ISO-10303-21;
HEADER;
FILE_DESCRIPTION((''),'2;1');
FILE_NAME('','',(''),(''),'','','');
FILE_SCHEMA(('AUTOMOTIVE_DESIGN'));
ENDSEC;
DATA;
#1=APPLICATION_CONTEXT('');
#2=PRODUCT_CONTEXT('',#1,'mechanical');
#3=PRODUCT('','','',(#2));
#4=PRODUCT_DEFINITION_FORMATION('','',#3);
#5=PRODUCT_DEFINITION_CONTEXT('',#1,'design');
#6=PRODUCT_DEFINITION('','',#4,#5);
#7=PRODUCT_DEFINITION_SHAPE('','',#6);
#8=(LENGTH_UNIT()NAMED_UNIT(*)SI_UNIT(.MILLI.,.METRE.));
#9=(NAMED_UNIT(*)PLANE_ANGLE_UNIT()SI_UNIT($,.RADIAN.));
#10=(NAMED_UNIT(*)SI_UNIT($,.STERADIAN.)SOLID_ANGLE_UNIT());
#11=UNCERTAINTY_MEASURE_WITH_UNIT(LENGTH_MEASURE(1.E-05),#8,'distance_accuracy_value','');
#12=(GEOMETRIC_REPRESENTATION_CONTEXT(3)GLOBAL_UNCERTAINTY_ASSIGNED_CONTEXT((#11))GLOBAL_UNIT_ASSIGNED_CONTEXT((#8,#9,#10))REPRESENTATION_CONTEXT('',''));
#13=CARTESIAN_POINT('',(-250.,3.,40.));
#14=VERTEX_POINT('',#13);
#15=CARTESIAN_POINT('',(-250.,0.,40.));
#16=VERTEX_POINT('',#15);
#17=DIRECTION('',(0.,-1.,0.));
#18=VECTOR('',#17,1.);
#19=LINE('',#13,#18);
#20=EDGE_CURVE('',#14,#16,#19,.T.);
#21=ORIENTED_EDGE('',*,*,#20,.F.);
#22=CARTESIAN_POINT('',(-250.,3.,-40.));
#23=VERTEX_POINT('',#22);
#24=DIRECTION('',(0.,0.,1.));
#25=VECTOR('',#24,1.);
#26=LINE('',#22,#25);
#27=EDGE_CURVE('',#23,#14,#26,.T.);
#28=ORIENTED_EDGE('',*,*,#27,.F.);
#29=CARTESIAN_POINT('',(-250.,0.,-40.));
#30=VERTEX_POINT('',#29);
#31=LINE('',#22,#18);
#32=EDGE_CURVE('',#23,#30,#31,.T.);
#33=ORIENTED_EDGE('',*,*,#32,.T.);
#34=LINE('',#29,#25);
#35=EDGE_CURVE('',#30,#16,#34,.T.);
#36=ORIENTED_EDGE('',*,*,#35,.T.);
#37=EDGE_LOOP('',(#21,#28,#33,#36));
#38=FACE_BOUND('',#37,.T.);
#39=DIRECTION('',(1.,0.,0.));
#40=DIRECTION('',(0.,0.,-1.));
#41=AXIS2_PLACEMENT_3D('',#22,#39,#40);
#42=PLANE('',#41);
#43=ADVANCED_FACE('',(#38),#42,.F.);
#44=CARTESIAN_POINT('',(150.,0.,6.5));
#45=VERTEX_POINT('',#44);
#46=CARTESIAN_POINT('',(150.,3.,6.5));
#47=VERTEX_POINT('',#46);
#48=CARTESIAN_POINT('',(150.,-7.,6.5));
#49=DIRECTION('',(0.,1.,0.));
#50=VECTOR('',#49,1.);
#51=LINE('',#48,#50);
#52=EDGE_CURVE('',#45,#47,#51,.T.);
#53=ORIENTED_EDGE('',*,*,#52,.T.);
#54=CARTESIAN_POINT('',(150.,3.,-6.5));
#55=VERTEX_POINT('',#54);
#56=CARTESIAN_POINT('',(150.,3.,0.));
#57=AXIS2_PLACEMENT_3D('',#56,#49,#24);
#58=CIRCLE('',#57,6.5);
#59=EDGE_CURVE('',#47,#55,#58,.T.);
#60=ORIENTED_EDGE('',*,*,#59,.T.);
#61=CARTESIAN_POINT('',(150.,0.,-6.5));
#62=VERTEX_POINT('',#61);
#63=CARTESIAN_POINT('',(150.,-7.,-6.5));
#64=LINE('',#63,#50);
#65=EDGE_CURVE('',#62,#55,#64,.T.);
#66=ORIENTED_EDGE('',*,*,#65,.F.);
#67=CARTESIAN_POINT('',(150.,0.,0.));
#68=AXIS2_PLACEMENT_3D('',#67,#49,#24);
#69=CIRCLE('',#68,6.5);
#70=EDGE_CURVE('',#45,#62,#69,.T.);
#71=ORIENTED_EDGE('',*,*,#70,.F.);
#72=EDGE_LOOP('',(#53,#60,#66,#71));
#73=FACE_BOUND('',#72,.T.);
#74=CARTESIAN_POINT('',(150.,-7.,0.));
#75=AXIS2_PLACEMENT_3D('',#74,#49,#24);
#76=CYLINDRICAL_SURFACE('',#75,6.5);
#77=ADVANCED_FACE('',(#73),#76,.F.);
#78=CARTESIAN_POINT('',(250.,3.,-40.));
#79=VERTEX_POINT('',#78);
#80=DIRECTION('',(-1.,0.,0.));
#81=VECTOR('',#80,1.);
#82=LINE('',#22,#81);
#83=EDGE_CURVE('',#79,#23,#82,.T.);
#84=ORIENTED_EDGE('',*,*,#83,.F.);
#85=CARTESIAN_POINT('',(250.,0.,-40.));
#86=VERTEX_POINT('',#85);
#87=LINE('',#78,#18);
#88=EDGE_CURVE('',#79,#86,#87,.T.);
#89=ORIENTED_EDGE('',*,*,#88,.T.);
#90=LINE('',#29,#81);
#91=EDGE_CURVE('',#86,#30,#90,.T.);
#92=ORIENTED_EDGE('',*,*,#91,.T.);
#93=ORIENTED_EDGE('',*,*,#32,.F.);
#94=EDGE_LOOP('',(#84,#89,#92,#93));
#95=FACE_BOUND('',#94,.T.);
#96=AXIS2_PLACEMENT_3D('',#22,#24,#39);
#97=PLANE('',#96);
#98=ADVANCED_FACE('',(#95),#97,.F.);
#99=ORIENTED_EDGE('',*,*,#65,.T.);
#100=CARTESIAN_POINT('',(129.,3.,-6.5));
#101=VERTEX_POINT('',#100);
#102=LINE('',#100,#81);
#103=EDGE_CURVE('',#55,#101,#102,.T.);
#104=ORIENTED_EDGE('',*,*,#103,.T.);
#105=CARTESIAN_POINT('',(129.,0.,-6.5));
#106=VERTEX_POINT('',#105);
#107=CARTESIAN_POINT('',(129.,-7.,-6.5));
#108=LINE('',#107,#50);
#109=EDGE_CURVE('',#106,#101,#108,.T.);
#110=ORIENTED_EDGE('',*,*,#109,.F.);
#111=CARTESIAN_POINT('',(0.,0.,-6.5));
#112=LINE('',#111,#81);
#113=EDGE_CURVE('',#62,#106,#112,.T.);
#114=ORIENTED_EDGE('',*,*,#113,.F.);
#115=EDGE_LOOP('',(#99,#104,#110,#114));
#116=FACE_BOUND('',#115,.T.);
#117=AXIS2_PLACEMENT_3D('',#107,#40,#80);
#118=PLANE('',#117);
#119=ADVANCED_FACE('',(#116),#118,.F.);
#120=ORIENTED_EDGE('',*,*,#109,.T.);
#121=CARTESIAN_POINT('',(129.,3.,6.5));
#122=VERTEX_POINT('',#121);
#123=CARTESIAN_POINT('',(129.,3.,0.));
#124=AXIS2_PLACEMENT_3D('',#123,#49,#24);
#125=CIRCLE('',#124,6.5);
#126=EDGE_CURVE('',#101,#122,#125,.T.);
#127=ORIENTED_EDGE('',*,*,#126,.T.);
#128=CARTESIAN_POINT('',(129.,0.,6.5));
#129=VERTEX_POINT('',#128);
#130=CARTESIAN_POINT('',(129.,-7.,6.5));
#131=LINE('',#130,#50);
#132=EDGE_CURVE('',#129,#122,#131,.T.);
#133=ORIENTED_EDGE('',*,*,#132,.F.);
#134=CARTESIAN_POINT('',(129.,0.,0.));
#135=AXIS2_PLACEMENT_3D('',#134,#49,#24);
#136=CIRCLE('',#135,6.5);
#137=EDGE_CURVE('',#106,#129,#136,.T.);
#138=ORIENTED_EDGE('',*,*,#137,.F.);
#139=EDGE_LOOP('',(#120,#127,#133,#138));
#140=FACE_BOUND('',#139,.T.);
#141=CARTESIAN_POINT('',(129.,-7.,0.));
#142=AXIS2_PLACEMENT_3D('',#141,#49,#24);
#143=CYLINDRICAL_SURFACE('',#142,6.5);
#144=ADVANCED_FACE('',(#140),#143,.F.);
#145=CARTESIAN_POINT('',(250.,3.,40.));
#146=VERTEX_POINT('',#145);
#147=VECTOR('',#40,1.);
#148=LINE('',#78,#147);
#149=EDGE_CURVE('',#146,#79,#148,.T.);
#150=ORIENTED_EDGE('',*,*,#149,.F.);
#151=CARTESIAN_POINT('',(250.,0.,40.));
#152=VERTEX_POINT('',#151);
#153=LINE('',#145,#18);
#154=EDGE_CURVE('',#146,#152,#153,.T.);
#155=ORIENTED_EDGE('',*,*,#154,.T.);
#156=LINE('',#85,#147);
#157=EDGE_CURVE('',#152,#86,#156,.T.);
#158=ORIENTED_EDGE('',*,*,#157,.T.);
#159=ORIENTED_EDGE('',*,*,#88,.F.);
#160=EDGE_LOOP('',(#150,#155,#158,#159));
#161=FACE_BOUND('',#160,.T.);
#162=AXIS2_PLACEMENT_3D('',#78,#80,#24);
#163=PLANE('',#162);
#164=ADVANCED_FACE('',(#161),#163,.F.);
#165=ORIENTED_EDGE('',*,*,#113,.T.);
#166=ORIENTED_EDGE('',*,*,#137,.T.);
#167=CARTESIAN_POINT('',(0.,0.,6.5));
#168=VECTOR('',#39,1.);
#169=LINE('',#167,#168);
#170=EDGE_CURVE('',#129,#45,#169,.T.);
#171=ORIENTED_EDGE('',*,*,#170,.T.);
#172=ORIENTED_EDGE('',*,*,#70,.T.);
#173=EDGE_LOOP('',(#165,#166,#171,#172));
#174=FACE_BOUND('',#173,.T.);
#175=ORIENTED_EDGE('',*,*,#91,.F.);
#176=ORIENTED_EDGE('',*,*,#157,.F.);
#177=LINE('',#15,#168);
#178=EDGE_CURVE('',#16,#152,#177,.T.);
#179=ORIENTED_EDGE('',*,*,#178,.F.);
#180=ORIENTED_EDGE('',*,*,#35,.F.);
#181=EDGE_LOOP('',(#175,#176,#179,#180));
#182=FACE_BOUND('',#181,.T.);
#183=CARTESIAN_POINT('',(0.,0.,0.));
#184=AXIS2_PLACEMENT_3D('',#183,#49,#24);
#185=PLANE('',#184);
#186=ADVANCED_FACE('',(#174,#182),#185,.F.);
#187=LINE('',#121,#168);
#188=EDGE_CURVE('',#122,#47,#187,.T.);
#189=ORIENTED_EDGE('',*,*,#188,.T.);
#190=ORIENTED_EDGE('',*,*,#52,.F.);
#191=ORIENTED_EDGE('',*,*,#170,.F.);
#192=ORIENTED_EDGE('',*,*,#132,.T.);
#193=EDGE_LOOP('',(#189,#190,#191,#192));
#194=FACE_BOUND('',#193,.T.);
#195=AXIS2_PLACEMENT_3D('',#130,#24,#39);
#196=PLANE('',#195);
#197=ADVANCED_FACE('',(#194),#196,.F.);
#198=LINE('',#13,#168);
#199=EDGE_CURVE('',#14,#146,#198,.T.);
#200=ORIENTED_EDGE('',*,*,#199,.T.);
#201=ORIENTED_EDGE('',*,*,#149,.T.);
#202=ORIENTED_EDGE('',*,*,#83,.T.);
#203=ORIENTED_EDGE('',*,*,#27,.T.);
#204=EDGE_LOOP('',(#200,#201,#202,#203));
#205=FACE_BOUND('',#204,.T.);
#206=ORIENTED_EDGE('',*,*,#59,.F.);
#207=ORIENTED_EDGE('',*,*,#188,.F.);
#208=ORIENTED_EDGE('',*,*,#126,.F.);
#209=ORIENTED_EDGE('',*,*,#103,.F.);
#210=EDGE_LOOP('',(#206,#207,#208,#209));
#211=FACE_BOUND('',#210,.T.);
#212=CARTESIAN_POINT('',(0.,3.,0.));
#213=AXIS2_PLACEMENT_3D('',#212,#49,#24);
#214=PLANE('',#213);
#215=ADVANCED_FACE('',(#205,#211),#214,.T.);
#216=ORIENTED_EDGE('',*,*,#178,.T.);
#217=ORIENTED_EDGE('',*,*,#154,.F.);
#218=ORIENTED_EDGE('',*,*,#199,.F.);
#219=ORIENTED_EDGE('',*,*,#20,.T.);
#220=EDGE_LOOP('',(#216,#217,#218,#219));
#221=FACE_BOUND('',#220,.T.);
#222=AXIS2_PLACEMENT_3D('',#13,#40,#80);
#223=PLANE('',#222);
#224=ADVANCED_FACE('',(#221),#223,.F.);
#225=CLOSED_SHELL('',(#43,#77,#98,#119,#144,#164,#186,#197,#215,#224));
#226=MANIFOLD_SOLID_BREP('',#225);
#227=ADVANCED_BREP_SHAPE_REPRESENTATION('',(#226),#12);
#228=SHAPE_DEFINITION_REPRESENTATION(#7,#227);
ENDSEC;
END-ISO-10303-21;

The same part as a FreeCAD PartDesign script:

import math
import FreeCAD as App
import Part
import Sketcher

V = App.Vector


def add_polygon(sketch, points):
    """Adds a closed chain of lines whose ends are joined by coincident constraints."""
    first, n = sketch.GeometryCount, len(points)
    for a, b in zip(points, points[1:] + points[:1]):
        sketch.addGeometry(Part.LineSegment(App.Vector(*a, 0), App.Vector(*b, 0)), False)
    for i in range(n):
        sketch.addConstraint(Sketcher.Constraint("Coincident", first + i, 2, first + (i + 1) % n, 1))

doc = App.newDocument("Part")
params = doc.addObject("Spreadsheet::Sheet", "Params")
for row, (alias, value) in enumerate([
    ("sketch1_width", "500 mm"),
    ("sketch1_height", "80 mm"),
    ("pad1_length", "3 mm"),
    ("sketch2_radius", "6.5 mm"),
    ("sketch2_width", "21 mm"),
    ("pocket1_length", "10 mm"),
], start=1):
    params.set(f"A{row}", alias)
    params.set(f"B{row}", "=" + value)
    params.setAlias(f"B{row}", alias)

body = doc.addObject("PartDesign::Body", "Body")

sketch1 = body.newObject("Sketcher::SketchObject", "Sketch")
sketch1.AttachmentSupport = (doc.getObject("XZ_Plane"), [""])
sketch1.MapMode = "FlatFace"
add_polygon(sketch1, [(-250, -40), (-250, 40), (250, 40), (250, -40)])
sketch1.addConstraint([
    Sketcher.Constraint("Vertical", 0),
    Sketcher.Constraint("Horizontal", 1),
    Sketcher.Constraint("Vertical", 2),
    Sketcher.Constraint("Horizontal", 3),
    Sketcher.Constraint("Symmetric", 0, 2, 2, 2, -1, 1),
    Sketcher.Constraint("DistanceX", 1, 1, 1, 2, 500.0),
    Sketcher.Constraint("DistanceY", 0, 1, 0, 2, 80.0),
])
sketch1.setExpression("Constraints[9]", "Params.sketch1_width")
sketch1.setExpression("Constraints[10]", "Params.sketch1_height")
pad1 = body.newObject("PartDesign::Pad", "Pad")
pad1.Profile = sketch1
pad1.setExpression("Length", "Params.pad1_length")
pad1.Reversed = True

sketch2 = body.newObject("Sketcher::SketchObject", "Sketch001")
sketch2.AttachmentSupport = (doc.getObject("XZ_Plane"), [""])
sketch2.MapMode = "FlatFace"
sketch2.AttachmentOffset = App.Placement(V(0, 0, -3), App.Rotation())
sketch2.addGeometry([
    Part.LineSegment(V(150, -6, 0), V(129, -6, 0)),
    Part.ArcOfCircle(Part.Circle(V(129, 0, 0), V(0, 0, 1), 6), math.radians(90), math.radians(270)),
    Part.LineSegment(V(129, 6, 0), V(150, 6, 0)),
    Part.ArcOfCircle(Part.Circle(V(150, 0, 0), V(0, 0, 1), 6), math.radians(-90), math.radians(90)),
], False)
sketch2.addConstraint([
    Sketcher.Constraint("Tangent", 0, 2, 1, 2),
    Sketcher.Constraint("Tangent", 1, 1, 2, 1),
    Sketcher.Constraint("Tangent", 2, 2, 3, 2),
    Sketcher.Constraint("Tangent", 3, 1, 0, 1),
    Sketcher.Constraint("Horizontal", 0),
    Sketcher.Constraint("Horizontal", 2),
    Sketcher.Constraint("PointOnObject", 1, 3, -1),
    Sketcher.Constraint("Radius", 1, 6.5),
    Sketcher.Constraint("DistanceX", 0, 2, 0, 1, 21.0),
    Sketcher.Constraint("DistanceX", -1, 1, 1, 3, 129.0),
])
sketch2.setExpression("Constraints[7]", "Params.sketch2_radius")
sketch2.setExpression("Constraints[8]", "Params.sketch2_width")
pocket1 = body.newObject("PartDesign::Pocket", "Pocket")
pocket1.Profile = sketch2
pocket1.setExpression("Length", "Params.pocket1_length")
pocket1.Reversed = True

doc.recompute()
